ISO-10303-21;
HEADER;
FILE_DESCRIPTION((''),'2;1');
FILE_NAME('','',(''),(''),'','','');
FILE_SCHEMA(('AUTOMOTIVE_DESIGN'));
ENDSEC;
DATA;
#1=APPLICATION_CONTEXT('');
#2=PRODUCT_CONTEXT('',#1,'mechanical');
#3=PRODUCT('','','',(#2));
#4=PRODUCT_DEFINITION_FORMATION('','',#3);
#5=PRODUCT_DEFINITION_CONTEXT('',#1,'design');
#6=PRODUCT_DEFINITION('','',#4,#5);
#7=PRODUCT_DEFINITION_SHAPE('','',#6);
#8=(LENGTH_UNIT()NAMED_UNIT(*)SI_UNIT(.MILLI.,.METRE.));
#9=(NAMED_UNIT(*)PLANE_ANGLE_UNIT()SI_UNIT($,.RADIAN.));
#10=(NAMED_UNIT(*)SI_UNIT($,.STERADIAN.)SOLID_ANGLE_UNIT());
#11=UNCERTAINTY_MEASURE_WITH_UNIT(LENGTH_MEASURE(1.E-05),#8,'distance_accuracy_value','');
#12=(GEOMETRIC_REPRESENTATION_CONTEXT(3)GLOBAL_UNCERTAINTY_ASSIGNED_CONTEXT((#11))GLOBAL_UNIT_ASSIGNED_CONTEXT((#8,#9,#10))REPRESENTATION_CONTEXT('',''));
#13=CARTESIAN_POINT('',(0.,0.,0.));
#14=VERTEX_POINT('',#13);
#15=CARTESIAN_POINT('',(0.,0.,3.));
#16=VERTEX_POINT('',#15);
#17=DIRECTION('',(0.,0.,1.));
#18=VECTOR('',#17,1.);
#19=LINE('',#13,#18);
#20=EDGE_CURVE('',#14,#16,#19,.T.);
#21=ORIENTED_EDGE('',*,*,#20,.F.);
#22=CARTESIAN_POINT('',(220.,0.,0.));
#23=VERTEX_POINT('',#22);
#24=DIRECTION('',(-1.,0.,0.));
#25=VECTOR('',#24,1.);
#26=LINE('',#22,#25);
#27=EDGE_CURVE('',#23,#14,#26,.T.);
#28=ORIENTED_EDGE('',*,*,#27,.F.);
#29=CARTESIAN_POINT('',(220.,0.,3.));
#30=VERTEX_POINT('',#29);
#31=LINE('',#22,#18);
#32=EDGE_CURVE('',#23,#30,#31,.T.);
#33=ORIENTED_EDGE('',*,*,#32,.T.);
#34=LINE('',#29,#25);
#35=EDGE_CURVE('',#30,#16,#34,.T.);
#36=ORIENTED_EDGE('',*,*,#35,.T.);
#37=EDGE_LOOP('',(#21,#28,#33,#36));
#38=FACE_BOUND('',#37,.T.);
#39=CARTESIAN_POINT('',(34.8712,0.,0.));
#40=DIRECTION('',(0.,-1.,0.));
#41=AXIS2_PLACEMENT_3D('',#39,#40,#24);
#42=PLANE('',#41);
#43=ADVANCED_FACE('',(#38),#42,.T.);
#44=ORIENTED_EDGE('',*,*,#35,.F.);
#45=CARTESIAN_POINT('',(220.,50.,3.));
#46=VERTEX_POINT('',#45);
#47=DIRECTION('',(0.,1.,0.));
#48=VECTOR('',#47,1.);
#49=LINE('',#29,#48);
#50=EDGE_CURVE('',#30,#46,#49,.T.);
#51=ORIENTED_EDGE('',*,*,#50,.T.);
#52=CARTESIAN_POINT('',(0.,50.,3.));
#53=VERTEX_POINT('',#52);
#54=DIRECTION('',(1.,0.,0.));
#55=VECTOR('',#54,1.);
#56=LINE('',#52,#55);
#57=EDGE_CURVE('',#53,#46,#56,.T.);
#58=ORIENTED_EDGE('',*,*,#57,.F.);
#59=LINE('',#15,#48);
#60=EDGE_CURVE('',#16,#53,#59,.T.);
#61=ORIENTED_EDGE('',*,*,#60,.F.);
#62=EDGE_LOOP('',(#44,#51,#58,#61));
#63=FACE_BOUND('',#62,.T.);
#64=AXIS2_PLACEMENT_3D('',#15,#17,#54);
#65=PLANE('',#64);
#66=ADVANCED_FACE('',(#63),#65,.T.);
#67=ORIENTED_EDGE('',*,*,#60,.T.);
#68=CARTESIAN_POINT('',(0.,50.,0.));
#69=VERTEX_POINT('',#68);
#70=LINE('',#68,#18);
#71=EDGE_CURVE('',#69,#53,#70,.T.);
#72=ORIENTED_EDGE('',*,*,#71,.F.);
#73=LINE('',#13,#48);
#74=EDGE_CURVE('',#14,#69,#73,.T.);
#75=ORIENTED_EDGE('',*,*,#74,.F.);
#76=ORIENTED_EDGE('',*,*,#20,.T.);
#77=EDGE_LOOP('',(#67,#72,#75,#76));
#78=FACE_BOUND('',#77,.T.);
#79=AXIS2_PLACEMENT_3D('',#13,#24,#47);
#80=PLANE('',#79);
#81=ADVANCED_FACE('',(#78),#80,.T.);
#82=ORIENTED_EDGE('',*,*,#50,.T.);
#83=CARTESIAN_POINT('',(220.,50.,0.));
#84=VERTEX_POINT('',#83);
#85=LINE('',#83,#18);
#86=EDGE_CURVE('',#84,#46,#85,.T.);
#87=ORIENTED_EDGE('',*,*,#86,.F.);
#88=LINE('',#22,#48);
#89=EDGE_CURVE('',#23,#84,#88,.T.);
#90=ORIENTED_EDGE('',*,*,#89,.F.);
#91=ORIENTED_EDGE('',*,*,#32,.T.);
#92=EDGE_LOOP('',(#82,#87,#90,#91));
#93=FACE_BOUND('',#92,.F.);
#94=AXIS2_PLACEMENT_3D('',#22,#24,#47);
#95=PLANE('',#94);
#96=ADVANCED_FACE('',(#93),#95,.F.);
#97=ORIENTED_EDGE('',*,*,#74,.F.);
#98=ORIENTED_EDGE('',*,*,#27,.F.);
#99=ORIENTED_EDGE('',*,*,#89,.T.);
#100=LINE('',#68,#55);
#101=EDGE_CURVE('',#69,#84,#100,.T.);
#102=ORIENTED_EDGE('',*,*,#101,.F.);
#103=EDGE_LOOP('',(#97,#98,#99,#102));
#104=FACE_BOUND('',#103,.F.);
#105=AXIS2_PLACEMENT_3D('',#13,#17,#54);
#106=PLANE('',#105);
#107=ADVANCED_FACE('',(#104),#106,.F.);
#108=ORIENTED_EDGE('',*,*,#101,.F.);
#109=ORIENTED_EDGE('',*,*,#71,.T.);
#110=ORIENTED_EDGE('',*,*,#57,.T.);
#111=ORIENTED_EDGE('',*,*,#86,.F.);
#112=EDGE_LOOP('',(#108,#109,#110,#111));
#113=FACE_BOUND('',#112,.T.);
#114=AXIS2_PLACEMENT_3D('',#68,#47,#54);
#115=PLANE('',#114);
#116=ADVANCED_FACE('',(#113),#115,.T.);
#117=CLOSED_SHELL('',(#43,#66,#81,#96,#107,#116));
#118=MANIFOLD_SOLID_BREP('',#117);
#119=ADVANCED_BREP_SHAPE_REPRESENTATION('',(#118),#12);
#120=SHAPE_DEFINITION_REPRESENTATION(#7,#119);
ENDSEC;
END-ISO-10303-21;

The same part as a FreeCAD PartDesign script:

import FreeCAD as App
import Part
import Sketcher

V = App.Vector

doc = App.newDocument("Part")
params = doc.addObject("Spreadsheet::Sheet", "Params")
for row, (alias, value) in enumerate([
    ("sketch1_width", "220 mm"),
    ("sketch1_height", "50 mm"),
    ("pad1_length", "3 mm"),
], start=1):
    params.set(f"A{row}", alias)
    params.set(f"B{row}", "=" + value)
    params.setAlias(f"B{row}", alias)

body = doc.addObject("PartDesign::Body", "Body")

# Sketch on XY plane
sketch1 = body.newObject("Sketcher::SketchObject", "Sketch")
sketch1.AttachmentSupport = (doc.getObject("XY_Plane"), [""])
sketch1.MapMode = "FlatFace"
sketch1.addGeometry([
    Part.LineSegment(V(0, 0, 0), V(220, 0, 0)),
    Part.LineSegment(V(220, 0, 0), V(220, 50, 0)),
    Part.LineSegment(V(220, 50, 0), V(0, 50, 0)),
    Part.LineSegment(V(0, 50, 0), V(0, 0, 0)),
], False)
sketch1.addConstraint([
    Sketcher.Constraint("Coincident", 0, 2, 1, 1),
    Sketcher.Constraint("Coincident", 1, 2, 2, 1),
    Sketcher.Constraint("Coincident", 2, 2, 3, 1),
    Sketcher.Constraint("Coincident", 3, 2, 0, 1),
    Sketcher.Constraint("Horizontal", 0),
    Sketcher.Constraint("Vertical", 1),
    Sketcher.Constraint("Horizontal", 2),
    Sketcher.Constraint("Vertical", 3),
    Sketcher.Constraint("Coincident", 3, 2, -1, 1),
    Sketcher.Constraint("DistanceX", 0, 1, 0, 2, 220.0),
    Sketcher.Constraint("DistanceY", 1, 1, 1, 2, 50.0),
])
sketch1.setExpression("Constraints[9]", "Params.sketch1_width")
sketch1.setExpression("Constraints[10]", "Params.sketch1_height")
pad1 = body.newObject("PartDesign::Pad", "Pad")
pad1.Profile = sketch1
pad1.setExpression("Length", "Params.pad1_length")

doc.recompute()
